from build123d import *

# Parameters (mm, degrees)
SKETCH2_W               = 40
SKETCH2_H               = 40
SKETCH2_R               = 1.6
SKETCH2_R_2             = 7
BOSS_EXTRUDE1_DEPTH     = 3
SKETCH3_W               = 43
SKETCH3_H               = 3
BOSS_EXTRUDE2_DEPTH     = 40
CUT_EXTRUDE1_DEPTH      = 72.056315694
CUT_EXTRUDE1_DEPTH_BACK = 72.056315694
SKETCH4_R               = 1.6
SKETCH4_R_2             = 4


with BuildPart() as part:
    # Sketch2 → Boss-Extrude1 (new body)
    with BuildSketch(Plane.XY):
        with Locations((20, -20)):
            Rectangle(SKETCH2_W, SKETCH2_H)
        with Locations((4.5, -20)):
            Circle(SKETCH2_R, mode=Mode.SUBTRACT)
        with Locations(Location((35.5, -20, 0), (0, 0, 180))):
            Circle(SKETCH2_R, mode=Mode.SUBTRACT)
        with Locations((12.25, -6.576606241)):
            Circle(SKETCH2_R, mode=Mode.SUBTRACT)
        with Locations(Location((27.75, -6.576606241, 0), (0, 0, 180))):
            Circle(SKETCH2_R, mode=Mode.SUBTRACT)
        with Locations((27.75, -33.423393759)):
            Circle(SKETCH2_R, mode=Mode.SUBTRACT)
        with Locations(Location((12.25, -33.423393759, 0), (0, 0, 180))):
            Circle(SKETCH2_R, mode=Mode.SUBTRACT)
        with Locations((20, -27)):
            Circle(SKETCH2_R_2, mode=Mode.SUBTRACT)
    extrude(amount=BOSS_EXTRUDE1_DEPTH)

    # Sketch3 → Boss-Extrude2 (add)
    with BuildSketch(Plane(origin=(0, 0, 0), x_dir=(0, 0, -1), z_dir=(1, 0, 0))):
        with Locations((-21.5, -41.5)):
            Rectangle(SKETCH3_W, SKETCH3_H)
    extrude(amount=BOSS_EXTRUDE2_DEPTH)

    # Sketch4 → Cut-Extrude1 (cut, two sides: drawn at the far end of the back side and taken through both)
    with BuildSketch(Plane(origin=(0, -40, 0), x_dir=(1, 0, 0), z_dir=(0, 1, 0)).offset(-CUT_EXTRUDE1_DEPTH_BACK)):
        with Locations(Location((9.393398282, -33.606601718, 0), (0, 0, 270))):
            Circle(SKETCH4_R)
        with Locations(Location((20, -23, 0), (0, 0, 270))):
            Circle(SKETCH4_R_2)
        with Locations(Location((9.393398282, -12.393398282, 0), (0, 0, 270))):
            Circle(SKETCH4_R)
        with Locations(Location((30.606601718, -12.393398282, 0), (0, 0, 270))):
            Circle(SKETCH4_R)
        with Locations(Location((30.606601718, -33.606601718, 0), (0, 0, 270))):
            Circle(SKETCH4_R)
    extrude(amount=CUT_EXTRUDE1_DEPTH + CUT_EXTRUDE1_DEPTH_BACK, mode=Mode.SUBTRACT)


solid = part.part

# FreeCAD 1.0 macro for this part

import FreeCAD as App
import Part
import Sketcher

doc = App.newDocument("Part")
body = doc.addObject("PartDesign::Body", "Body")

# Sketch on XY plane
sketch1 = body.newObject("Sketcher::SketchObject", "Sketch")
sketch1.AttachmentSupport = (doc.getObject("XY_Plane"), [""])
sketch1.MapMode = "FlatFace"
sketch1.addGeometry(Part.LineSegment(App.Vector(0, 0, 0), App.Vector(0, -40, 0)), False)
sketch1.addGeometry(Part.LineSegment(App.Vector(0, -40, 0), App.Vector(40, -40, 0)), False)
sketch1.addGeometry(Part.LineSegment(App.Vector(40, -40, 0), App.Vector(40, 0, 0)), False)
sketch1.addGeometry(Part.LineSegment(App.Vector(40, 0, 0), App.Vector(0, 0, 0)), False)
sketch1.addGeometry(Part.Circle(App.Vector(12.2, -33.4, 0), App.Vector(0, 0, 1), 1.6), False)
sketch1.addGeometry(Part.Circle(App.Vector(27.8, -33.4, 0), App.Vector(0, 0, 1), 1.6), False)
sketch1.addGeometry(Part.Circle(App.Vector(20, -27, 0), App.Vector(0, 0, 1), 7), False)
sketch1.addGeometry(Part.Circle(App.Vector(4.5, -20, 0), App.Vector(0, 0, 1), 1.6), False)
sketch1.addGeometry(Part.Circle(App.Vector(12.2, -6.6, 0), App.Vector(0, 0, 1), 1.6), False)
sketch1.addGeometry(Part.Circle(App.Vector(35.5, -20, 0), App.Vector(0, 0, 1), 1.6), False)
sketch1.addGeometry(Part.Circle(App.Vector(27.8, -6.6, 0), App.Vector(0, 0, 1), 1.6), False)
sketch1.addConstraint(Sketcher.Constraint("Coincident", 0, 2, 1, 1))
sketch1.addConstraint(Sketcher.Constraint("Coincident", 1, 2, 2, 1))
sketch1.addConstraint(Sketcher.Constraint("Coincident", 2, 2, 3, 1))
sketch1.addConstraint(Sketcher.Constraint("Coincident", 3, 2, 0, 1))
sketch1.addConstraint(Sketcher.Constraint("Vertical", 0))
sketch1.addConstraint(Sketcher.Constraint("Horizontal", 1))
sketch1.addConstraint(Sketcher.Constraint("Vertical", 2))
sketch1.addConstraint(Sketcher.Constraint("Horizontal", 3))
sketch1.addConstraint(Sketcher.Constraint("Coincident", 3, 2, -1, 1))
sketch1.addConstraint(Sketcher.Constraint("Equal", 4, 5))
sketch1.addConstraint(Sketcher.Constraint("Equal", 5, 7))
sketch1.addConstraint(Sketcher.Constraint("Equal", 7, 8))
sketch1.addConstraint(Sketcher.Constraint("Equal", 8, 9))
sketch1.addConstraint(Sketcher.Constraint("Equal", 9, 10))
sketch1.addConstraint(Sketcher.Constraint("Horizontal", 4, 3, 5, 3))
sketch1.addConstraint(Sketcher.Constraint("Horizontal", 7, 3, 9, 3))
sketch1.addConstraint(Sketcher.Constraint("Horizontal", 8, 3, 10, 3))
sketch1.addConstraint(Sketcher.Constraint("Vertical", 4, 3, 8, 3))
sketch1.addConstraint(Sketcher.Constraint("Vertical", 5, 3, 10, 3))
sketch1.addConstraint(Sketcher.Constraint("Equal", 3, 0))
sketch1.addConstraint(Sketcher.Constraint("Diameter", 6, 14.0))
sketch1.addConstraint(Sketcher.Constraint("Diameter", 4, 3.2))
sketch1.addConstraint(Sketcher.Constraint("DistanceX", 1, 1, 1, 2, 40.0))
sketch1.addConstraint(Sketcher.Constraint("DistanceX", -1, 1, 6, 3, 20.0))
sketch1.addConstraint(Sketcher.Constraint("DistanceY", 6, 3, -1, 1, 27.0))
sketch1.addConstraint(Sketcher.Constraint("DistanceY", 7, 3, -1, 1, 20.0))
sketch1.addConstraint(Sketcher.Constraint("DistanceX", 7, 3, 9, 3, 31.0))
sketch1.addConstraint(Sketcher.Constraint("DistanceX", -1, 1, 7, 3, 4.5))
sketch1.addConstraint(Sketcher.Constraint("DistanceX", 4, 3, 5, 3, 15.5))
sketch1.addConstraint(Sketcher.Constraint("DistanceX", -1, 1, 4, 3, 12.25))
sketch1.addConstraint(Sketcher.Constraint("DistanceY", 4, 3, -1, 1, 33.423394))
sketch1.addConstraint(Sketcher.Constraint("DistanceY", 8, 3, -1, 1, 6.576606))
pad1 = body.newObject("PartDesign::Pad", "Pad")
pad1.Profile = sketch1
pad1.Length = 3

# Sketch on YZ plane
sketch2 = body.newObject("Sketcher::SketchObject", "Sketch001")
sketch2.AttachmentSupport = (doc.getObject("YZ_Plane"), [""])
sketch2.MapMode = "FlatFace"
sketch2.addGeometry(Part.LineSegment(App.Vector(-40, 43, 0), App.Vector(-43, 43, 0)), False)
sketch2.addGeometry(Part.LineSegment(App.Vector(-43, 43, 0), App.Vector(-43, 0, 0)), False)
sketch2.addGeometry(Part.LineSegment(App.Vector(-43, 0, 0), App.Vector(-40, 0, 0)), False)
sketch2.addGeometry(Part.LineSegment(App.Vector(-40, 0, 0), App.Vector(-40, 43, 0)), False)
sketch2.addConstraint(Sketcher.Constraint("Coincident", 0, 2, 1, 1))
sketch2.addConstraint(Sketcher.Constraint("Coincident", 1, 2, 2, 1))
sketch2.addConstraint(Sketcher.Constraint("Coincident", 2, 2, 3, 1))
sketch2.addConstraint(Sketcher.Constraint("Coincident", 3, 2, 0, 1))
sketch2.addConstraint(Sketcher.Constraint("Horizontal", 0))
sketch2.addConstraint(Sketcher.Constraint("Vertical", 1))
sketch2.addConstraint(Sketcher.Constraint("Horizontal", 2))
sketch2.addConstraint(Sketcher.Constraint("Vertical", 3))
sketch2.addConstraint(Sketcher.Constraint("PointOnObject", 1, 2, -1))
sketch2.addConstraint(Sketcher.Constraint("DistanceX", 0, 2, 0, 1, 3.0))
sketch2.addConstraint(Sketcher.Constraint("DistanceY", 1, 2, 1, 1, 43.0))
sketch2.addConstraint(Sketcher.Constraint("DistanceX", 0, 2, -1, 1, 43.0))
pad2 = body.newObject("PartDesign::Pad", "Pad001")
pad2.Profile = sketch2
pad2.Length = 40

# Sketch on XZ plane
sketch3 = body.newObject("Sketcher::SketchObject", "Sketch002")
sketch3.AttachmentSupport = (doc.getObject("XZ_Plane"), [""])
sketch3.MapMode = "FlatFace"
sketch3.AttachmentOffset = App.Placement(App.Vector(0, 0, 40), App.Rotation())
sketch3.addGeometry(Part.Circle(App.Vector(9.4, 33.6, 0), App.Vector(0, 0, 1), 1.6), False)
sketch3.addGeometry(Part.Circle(App.Vector(20, 23, 0), App.Vector(0, 0, 1), 4), False)
sketch3.addGeometry(Part.Circle(App.Vector(9.4, 12.4, 0), App.Vector(0, 0, 1), 1.6), False)
sketch3.addGeometry(Part.Circle(App.Vector(30.6, 12.4, 0), App.Vector(0, 0, 1), 1.6), False)
sketch3.addGeometry(Part.Circle(App.Vector(30.6, 33.6, 0), App.Vector(0, 0, 1), 1.6), False)
sketch3.addConstraint(Sketcher.Constraint("Equal", 0, 2))
sketch3.addConstraint(Sketcher.Constraint("Equal", 2, 3))
sketch3.addConstraint(Sketcher.Constraint("Equal", 3, 4))
sketch3.addConstraint(Sketcher.Constraint("Horizontal", 2, 3, 3, 3))
sketch3.addConstraint(Sketcher.Constraint("Horizontal", 0, 3, 4, 3))
sketch3.addConstraint(Sketcher.Constraint("Vertical", 0, 3, 2, 3))
sketch3.addConstraint(Sketcher.Constraint("Vertical", 3, 3, 4, 3))
sketch3.addConstraint(Sketcher.Constraint("Diameter", 1, 8.0))
sketch3.addConstraint(Sketcher.Constraint("Diameter", 0, 3.2))
sketch3.addConstraint(Sketcher.Constraint("DistanceX", -1, 1, 1, 3, 20.0))
sketch3.addConstraint(Sketcher.Constraint("DistanceY", -1, 1, 1, 3, 23.0))
sketch3.addConstraint(Sketcher.Constraint("DistanceX", -1, 1, 0, 3, 9.393398))
sketch3.addConstraint(Sketcher.Constraint("DistanceY", -1, 1, 0, 3, 33.606602))
sketch3.addConstraint(Sketcher.Constraint("DistanceY", -1, 1, 2, 3, 12.393398))
sketch3.addConstraint(Sketcher.Constraint("DistanceX", -1, 1, 3, 3, 30.606602))
pocket1 = body.newObject("PartDesign::Pocket", "Pocket")
pocket1.Profile = sketch3
pocket1.Type = "ThroughAll"
pocket1.Midplane = True

doc.recompute()
